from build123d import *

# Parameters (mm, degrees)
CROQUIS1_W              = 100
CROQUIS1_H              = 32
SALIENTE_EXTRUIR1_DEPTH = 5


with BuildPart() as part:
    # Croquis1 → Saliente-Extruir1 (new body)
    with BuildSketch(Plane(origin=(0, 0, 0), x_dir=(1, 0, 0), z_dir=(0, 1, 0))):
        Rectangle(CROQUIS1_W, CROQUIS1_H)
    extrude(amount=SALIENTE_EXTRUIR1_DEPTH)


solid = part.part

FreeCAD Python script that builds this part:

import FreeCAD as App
import Part
import Sketcher
Q = App.Units.Quantity

doc = App.newDocument("Part")
body = doc.addObject("PartDesign::Body", "Body")

# Sketch on XZ plane
sketch1 = body.newObject("Sketcher::SketchObject", "Sketch")
sketch1.AttachmentSupport = (doc.getObject("XZ_Plane"), [""])
sketch1.MapMode = "FlatFace"
sketch1.addGeometry(Part.LineSegment(App.Vector(-50, -16, 0), App.Vector(-50, 16, 0)), False)
sketch1.addGeometry(Part.LineSegment(App.Vector(-50, 16, 0), App.Vector(50, 16, 0)), False)
sketch1.addGeometry(Part.LineSegment(App.Vector(50, 16, 0), App.Vector(50, -16, 0)), False)
sketch1.addGeometry(Part.LineSegment(App.Vector(50, -16, 0), App.Vector(-50, -16, 0)), False)
sketch1.addConstraint(Sketcher.Constraint("Coincident", 0, 2, 1, 1))
sketch1.addConstraint(Sketcher.Constraint("Coincident", 1, 2, 2, 1))
sketch1.addConstraint(Sketcher.Constraint("Coincident", 2, 2, 3, 1))
sketch1.addConstraint(Sketcher.Constraint("Coincident", 3, 2, 0, 1))
sketch1.addConstraint(Sketcher.Constraint("Vertical", 0))
sketch1.addConstraint(Sketcher.Constraint("Horizontal", 1))
sketch1.addConstraint(Sketcher.Constraint("Vertical", 2))
sketch1.addConstraint(Sketcher.Constraint("Horizontal", 3))
sketch1.addConstraint(Sketcher.Constraint("Symmetric", 0, 2, 2, 2, -1, 1))
sketch1.addConstraint(Sketcher.Constraint("DistanceX", 1, 1, 1, 2, Q("100 mm")))
sketch1.addConstraint(Sketcher.Constraint("DistanceY", 0, 1, 0, 2, Q("32 mm")))
pad1 = body.newObject("PartDesign::Pad", "Pad")
pad1.Profile = sketch1
pad1.Length = 5
pad1.Reversed = True

doc.recompute()
